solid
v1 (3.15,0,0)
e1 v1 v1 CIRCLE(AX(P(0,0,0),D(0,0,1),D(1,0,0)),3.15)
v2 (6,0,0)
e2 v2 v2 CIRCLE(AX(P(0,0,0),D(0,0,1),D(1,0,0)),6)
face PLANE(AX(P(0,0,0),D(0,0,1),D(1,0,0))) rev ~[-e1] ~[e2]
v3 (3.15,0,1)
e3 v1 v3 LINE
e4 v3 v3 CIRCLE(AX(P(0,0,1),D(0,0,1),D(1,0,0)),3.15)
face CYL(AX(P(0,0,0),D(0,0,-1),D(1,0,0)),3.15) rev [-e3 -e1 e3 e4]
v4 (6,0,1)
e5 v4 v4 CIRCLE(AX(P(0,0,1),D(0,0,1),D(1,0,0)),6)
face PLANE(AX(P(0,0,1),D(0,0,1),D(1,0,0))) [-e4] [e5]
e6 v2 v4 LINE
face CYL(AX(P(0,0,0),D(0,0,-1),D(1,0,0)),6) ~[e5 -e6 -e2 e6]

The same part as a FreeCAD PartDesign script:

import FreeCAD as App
import Part
import Sketcher
Q = App.Units.Quantity

doc = App.newDocument("Part")
params = doc.addObject("Spreadsheet::Sheet", "Params")
for row, (alias, value) in enumerate([
    ("sketch1_diameter", "12 mm"),
    ("sketch1_diameter2", "6.3 mm"),
    ("pad1_length", "1 mm"),
], start=1):
    params.set(f"A{row}", alias)
    params.set(f"B{row}", "=" + value)
    params.setAlias(f"B{row}", alias)

body = doc.addObject("PartDesign::Body", "Body")

# Sketch on XY plane
sketch1 = doc.addObject("Sketcher::SketchObject", "Sketch")
body.addObject(sketch1)
sketch1.AttachmentSupport = (doc.XY_Plane, [""])
sketch1.MapMode = "FlatFace"
sketch1.addGeometry(Part.Circle(App.Vector(0, 0, 0), App.Vector(0, 0, 1), 6), False)
sketch1.addGeometry(Part.Circle(App.Vector(0, 0, 0), App.Vector(0, 0, 1), 3.15), False)
sketch1.addConstraint(Sketcher.Constraint("Coincident", 0, 3, -1, 1))
sketch1.addConstraint(Sketcher.Constraint("Coincident", 1, 3, -1, 1))
sketch1.addConstraint(Sketcher.Constraint("Diameter", 0, Q("12 mm")))
sketch1.addConstraint(Sketcher.Constraint("Diameter", 1, Q("6.3 mm")))
sketch1.setExpression("Constraints[2]", "Params.sketch1_diameter")
sketch1.setExpression("Constraints[3]", "Params.sketch1_diameter2")
pad1 = doc.addObject("PartDesign::Pad", "Pad")
body.addObject(pad1)
pad1.Profile = sketch1
pad1.setExpression("Length", "Params.pad1_length")

doc.recompute()
